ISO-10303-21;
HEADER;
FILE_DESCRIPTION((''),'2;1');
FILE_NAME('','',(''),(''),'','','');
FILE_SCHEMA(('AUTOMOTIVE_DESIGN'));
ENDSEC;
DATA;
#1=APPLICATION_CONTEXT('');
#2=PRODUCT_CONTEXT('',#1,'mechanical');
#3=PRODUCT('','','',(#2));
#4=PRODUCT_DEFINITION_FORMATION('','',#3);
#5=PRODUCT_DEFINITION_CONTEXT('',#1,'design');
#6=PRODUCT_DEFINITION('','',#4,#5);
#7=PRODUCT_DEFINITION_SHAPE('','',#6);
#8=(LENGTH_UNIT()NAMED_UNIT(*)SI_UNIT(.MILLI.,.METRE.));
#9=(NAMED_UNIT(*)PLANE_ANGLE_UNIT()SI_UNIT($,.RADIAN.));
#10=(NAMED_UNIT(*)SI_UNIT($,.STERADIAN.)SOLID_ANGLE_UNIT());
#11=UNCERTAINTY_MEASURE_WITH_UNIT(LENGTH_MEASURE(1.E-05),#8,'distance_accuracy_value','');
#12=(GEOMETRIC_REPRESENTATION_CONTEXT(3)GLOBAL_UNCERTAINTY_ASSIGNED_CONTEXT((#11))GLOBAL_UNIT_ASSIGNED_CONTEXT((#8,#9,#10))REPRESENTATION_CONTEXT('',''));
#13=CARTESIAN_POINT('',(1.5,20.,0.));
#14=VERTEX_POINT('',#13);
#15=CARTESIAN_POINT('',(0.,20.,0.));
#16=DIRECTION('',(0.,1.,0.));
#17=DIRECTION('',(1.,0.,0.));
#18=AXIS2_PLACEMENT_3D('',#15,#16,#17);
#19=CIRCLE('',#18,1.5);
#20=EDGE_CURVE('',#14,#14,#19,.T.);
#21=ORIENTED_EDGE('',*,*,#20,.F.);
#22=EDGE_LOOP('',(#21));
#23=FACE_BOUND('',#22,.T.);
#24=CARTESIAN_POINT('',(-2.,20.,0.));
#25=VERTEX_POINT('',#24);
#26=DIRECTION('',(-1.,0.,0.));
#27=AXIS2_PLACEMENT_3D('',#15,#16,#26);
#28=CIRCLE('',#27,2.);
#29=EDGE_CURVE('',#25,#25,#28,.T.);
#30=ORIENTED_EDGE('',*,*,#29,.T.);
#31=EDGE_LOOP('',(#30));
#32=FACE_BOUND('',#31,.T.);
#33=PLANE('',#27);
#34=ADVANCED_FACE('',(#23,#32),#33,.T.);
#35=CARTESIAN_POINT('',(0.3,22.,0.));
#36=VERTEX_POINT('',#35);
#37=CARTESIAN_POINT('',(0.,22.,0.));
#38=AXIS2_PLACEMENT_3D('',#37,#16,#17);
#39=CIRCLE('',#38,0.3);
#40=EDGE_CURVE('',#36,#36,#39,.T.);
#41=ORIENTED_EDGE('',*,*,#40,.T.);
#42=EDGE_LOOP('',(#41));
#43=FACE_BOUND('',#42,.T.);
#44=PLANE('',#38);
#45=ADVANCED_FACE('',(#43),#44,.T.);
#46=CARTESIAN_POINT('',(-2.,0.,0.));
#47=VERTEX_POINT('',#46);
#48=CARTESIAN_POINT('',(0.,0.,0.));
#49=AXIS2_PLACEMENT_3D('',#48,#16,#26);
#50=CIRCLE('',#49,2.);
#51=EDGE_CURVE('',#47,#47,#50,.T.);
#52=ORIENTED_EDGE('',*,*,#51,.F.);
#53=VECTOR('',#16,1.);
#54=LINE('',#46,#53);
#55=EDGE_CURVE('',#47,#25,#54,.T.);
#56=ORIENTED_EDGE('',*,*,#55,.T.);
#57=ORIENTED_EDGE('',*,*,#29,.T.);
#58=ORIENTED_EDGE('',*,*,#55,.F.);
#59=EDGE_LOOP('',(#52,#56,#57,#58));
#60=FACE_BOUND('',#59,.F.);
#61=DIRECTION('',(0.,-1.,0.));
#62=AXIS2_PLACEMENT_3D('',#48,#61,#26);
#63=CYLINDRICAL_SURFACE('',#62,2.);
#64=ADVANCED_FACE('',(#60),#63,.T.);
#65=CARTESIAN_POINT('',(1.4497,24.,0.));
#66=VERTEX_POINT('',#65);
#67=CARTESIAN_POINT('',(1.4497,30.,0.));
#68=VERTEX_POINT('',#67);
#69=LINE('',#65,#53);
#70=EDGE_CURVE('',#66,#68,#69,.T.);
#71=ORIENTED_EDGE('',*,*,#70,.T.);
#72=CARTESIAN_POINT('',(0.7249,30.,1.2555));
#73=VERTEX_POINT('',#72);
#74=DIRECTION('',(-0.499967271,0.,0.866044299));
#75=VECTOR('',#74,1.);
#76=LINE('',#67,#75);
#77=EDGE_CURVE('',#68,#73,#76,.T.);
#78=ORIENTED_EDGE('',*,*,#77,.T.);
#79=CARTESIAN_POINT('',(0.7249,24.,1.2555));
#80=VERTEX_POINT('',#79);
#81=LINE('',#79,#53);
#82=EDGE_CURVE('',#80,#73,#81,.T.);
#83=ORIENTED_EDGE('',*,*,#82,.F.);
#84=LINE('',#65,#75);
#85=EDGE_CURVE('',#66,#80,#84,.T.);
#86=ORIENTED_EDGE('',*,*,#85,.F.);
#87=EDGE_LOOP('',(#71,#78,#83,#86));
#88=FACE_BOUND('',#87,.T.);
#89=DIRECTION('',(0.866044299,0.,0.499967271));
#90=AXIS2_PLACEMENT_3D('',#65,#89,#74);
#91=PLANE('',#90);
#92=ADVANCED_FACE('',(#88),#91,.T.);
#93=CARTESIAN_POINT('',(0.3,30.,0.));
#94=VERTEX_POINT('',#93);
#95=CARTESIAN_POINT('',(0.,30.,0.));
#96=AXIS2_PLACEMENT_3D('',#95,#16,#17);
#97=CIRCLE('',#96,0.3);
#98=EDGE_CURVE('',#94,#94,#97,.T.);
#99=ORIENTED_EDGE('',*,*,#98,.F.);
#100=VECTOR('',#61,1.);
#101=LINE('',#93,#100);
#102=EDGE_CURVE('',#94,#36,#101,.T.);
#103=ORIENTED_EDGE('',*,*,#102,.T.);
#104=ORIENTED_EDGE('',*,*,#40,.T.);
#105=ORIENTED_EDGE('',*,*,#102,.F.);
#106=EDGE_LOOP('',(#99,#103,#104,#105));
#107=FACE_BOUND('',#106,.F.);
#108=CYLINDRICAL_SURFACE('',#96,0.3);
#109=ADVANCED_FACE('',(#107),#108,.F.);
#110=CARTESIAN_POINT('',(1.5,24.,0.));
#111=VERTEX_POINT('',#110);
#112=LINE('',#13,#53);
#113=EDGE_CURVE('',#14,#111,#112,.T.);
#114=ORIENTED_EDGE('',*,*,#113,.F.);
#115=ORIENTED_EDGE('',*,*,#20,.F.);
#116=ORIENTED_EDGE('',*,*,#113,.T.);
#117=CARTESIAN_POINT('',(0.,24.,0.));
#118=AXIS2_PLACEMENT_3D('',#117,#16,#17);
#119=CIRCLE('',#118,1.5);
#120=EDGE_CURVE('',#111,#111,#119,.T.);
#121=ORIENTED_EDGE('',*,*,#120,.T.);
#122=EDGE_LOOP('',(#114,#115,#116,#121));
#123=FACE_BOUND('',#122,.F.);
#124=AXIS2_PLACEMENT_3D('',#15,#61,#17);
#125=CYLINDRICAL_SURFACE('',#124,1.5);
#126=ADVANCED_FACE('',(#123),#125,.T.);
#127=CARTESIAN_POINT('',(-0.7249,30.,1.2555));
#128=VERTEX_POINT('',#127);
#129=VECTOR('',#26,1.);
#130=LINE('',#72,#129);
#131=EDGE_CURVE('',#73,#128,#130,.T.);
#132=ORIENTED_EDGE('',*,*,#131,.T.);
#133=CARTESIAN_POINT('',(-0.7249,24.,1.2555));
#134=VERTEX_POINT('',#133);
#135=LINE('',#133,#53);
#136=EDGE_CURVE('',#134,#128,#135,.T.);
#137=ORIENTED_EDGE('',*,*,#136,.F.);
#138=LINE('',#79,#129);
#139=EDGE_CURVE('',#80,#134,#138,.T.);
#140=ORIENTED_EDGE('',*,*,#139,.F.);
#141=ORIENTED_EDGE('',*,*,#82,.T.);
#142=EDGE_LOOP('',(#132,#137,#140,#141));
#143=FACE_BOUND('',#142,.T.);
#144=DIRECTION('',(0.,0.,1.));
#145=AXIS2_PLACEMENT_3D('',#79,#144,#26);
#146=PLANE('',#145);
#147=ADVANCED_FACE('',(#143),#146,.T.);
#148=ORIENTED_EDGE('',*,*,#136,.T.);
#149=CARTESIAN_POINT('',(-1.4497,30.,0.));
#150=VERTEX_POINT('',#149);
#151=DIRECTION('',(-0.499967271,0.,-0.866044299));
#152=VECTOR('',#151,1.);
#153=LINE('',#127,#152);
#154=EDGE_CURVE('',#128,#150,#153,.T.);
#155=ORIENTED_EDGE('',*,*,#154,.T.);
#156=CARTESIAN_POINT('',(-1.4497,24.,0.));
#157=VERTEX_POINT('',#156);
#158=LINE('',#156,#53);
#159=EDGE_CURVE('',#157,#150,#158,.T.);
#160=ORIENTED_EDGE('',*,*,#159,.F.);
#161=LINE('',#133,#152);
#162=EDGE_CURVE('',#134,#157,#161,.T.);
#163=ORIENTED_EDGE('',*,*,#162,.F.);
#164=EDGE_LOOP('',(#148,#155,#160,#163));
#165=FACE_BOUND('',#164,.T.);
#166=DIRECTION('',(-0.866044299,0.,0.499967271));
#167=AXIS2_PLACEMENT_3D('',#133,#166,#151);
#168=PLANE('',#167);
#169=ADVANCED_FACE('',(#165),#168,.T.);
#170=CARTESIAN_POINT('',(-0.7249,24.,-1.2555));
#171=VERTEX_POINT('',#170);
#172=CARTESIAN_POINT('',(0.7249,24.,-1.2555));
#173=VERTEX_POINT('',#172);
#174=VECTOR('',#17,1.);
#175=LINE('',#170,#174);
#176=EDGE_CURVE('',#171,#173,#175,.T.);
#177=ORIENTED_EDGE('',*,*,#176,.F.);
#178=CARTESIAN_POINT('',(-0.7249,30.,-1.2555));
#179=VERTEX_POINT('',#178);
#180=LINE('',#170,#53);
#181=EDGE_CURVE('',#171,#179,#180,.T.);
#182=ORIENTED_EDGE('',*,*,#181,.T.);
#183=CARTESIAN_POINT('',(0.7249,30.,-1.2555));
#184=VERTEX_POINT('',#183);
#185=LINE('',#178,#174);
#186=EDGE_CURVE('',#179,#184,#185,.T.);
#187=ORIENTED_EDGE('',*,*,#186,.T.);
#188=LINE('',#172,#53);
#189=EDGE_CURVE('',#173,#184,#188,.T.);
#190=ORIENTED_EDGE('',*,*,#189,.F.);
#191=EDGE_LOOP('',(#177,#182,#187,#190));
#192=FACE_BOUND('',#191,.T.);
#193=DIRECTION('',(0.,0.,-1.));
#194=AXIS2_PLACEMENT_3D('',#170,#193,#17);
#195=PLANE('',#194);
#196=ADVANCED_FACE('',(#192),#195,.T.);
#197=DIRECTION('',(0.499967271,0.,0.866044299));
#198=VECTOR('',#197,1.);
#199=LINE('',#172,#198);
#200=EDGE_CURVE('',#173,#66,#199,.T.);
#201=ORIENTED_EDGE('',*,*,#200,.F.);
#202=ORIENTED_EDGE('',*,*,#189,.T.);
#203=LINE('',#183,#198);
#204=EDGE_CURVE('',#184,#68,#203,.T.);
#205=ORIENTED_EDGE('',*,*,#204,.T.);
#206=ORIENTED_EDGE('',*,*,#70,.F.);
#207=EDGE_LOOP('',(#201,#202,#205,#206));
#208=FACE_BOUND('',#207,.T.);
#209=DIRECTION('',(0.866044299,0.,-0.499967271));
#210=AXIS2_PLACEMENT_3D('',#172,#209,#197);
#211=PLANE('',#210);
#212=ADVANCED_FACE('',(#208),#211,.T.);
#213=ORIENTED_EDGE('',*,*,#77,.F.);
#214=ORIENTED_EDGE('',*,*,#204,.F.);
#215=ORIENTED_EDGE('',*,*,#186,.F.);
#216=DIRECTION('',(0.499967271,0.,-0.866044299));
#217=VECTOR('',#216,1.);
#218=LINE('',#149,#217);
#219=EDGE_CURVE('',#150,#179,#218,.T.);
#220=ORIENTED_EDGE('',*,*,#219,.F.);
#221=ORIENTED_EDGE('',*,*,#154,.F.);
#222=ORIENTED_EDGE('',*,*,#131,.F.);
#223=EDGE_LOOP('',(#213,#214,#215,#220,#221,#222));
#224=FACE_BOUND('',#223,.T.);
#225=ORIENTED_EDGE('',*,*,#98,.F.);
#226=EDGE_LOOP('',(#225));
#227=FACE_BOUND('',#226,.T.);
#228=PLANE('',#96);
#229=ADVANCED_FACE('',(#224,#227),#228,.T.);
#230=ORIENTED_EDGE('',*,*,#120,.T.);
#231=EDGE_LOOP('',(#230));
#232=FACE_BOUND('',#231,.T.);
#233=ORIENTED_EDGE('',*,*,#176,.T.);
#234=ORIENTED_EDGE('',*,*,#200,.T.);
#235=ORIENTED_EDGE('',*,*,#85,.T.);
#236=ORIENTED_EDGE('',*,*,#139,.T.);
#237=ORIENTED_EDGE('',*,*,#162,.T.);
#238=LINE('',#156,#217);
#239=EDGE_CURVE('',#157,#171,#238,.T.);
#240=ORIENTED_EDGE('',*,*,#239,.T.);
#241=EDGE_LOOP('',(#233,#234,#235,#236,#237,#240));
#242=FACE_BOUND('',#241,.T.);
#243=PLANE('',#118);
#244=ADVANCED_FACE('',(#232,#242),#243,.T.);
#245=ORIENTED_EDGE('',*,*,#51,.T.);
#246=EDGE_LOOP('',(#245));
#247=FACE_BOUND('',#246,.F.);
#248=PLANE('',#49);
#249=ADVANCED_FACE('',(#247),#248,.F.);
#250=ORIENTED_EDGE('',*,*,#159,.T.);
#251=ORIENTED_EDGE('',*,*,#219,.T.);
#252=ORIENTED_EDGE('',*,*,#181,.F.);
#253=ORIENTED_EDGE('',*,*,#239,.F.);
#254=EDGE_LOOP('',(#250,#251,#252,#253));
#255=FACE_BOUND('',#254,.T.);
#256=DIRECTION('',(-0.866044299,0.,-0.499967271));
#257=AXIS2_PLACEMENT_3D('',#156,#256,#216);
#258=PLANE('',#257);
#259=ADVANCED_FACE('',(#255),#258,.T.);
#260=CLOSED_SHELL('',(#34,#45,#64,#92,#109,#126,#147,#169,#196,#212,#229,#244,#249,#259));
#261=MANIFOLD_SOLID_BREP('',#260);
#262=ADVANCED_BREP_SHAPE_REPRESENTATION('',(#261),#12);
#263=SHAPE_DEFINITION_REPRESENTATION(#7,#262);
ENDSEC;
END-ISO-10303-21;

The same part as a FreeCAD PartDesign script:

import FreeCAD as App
import Part
import Sketcher
Q = App.Units.Quantity


def add_polygon(sketch, points):
    """Adds a closed chain of lines whose ends are joined by coincident constraints."""
    first, n = sketch.GeometryCount, len(points)
    for a, b in zip(points, points[1:] + points[:1]):
        sketch.addGeometry(Part.LineSegment(App.Vector(*a, 0), App.Vector(*b, 0)), False)
    for i in range(n):
        sketch.addConstraint(Sketcher.Constraint("Coincident", first + i, 2, first + (i + 1) % n, 1))

doc = App.newDocument("Part")
body = doc.addObject("PartDesign::Body", "Body")

# Sketch on XZ plane
sketch1 = doc.addObject("Sketcher::SketchObject", "Sketch")
body.addObject(sketch1)
sketch1.AttachmentSupport = (doc.XZ_Plane, [""])
sketch1.MapMode = "FlatFace"
sketch1.addGeometry(Part.Circle(App.Vector(0, 0, 0), App.Vector(0, 0, 1), 2), False)
sketch1.addConstraint(Sketcher.Constraint("Coincident", 0, 3, -1, 1))
sketch1.addConstraint(Sketcher.Constraint("Diameter", 0, Q("4 mm")))
pad1 = doc.addObject("PartDesign::Pad", "Pad")
body.addObject(pad1)
pad1.Profile = sketch1
pad1.Length = 20
pad1.Reversed = True

# Sketch on XZ plane
sketch2 = doc.addObject("Sketcher::SketchObject", "Sketch001")
body.addObject(sketch2)
sketch2.AttachmentSupport = (doc.XZ_Plane, [""])
sketch2.MapMode = "FlatFace"
sketch2.AttachmentOffset = App.Placement(App.Vector(0, 0, -20), App.Rotation())
sketch2.addGeometry(Part.Circle(App.Vector(0, 0, 0), App.Vector(0, 0, 1), 1.5), False)
sketch2.addConstraint(Sketcher.Constraint("Coincident", 0, 3, -1, 1))
sketch2.addConstraint(Sketcher.Constraint("Diameter", 0, Q("3 mm")))
pad2 = doc.addObject("PartDesign::Pad", "Pad001")
body.addObject(pad2)
pad2.Profile = sketch2
pad2.Length = 4
pad2.Reversed = True

# Sketch on XZ plane
sketch3 = doc.addObject("Sketcher::SketchObject", "Sketch002")
body.addObject(sketch3)
sketch3.AttachmentSupport = (doc.XZ_Plane, [""])
sketch3.MapMode = "FlatFace"
sketch3.AttachmentOffset = App.Placement(App.Vector(0, 0, -24), App.Rotation())
add_polygon(sketch3, [(-0.7, -1.3), (-1.4, 0), (-0.7, 1.3), (0.7, 1.3), (1.4, 0), (0.7, -1.3)])  # lines 0-5
sketch3.addConstraint(Sketcher.Constraint("Horizontal", 2))
sketch3.addConstraint(Sketcher.Constraint("Horizontal", 5))
sketch3.addConstraint(Sketcher.Constraint("Symmetric", 0, 2, 3, 2, -1, 1))
sketch3.addConstraint(Sketcher.Constraint("Symmetric", 1, 2, 4, 2, -1, 1))
sketch3.addConstraint(Sketcher.Constraint("PointOnObject", 0, 2, -1))
sketch3.addConstraint(Sketcher.Constraint("Parallel", 0, 3))
sketch3.addConstraint(Sketcher.Constraint("Vertical", 2, 2, 4, 2))
sketch3.addConstraint(Sketcher.Constraint("DistanceY", 4, 2, 2, 2, Q("2.511 mm")))
sketch3.addConstraint(Sketcher.Constraint("DistanceX", 2, 1, 2, 2, Q("1.4498 mm")))
sketch3.addConstraint(Sketcher.Constraint("Distance", 0, Q("1.4497 mm")))
pad3 = doc.addObject("PartDesign::Pad", "Pad002")
body.addObject(pad3)
pad3.Profile = sketch3
pad3.Length = 6
pad3.Reversed = True

# Sketch on XZ plane
sketch4 = doc.addObject("Sketcher::SketchObject", "Sketch003")
body.addObject(sketch4)
sketch4.AttachmentSupport = (doc.XZ_Plane, [""])
sketch4.MapMode = "FlatFace"
sketch4.AttachmentOffset = App.Placement(App.Vector(0, 0, -30), App.Rotation())
sketch4.addGeometry(Part.Circle(App.Vector(0, 0, 0), App.Vector(0, 0, 1), 0.3), False)
sketch4.addConstraint(Sketcher.Constraint("Coincident", 0, 3, -1, 1))
sketch4.addConstraint(Sketcher.Constraint("Diameter", 0, Q("0.6 mm")))
pocket1 = doc.addObject("PartDesign::Pocket", "Pocket")
body.addObject(pocket1)
pocket1.Profile = sketch4
pocket1.Length = 8
pocket1.Reversed = True

doc.recompute()
